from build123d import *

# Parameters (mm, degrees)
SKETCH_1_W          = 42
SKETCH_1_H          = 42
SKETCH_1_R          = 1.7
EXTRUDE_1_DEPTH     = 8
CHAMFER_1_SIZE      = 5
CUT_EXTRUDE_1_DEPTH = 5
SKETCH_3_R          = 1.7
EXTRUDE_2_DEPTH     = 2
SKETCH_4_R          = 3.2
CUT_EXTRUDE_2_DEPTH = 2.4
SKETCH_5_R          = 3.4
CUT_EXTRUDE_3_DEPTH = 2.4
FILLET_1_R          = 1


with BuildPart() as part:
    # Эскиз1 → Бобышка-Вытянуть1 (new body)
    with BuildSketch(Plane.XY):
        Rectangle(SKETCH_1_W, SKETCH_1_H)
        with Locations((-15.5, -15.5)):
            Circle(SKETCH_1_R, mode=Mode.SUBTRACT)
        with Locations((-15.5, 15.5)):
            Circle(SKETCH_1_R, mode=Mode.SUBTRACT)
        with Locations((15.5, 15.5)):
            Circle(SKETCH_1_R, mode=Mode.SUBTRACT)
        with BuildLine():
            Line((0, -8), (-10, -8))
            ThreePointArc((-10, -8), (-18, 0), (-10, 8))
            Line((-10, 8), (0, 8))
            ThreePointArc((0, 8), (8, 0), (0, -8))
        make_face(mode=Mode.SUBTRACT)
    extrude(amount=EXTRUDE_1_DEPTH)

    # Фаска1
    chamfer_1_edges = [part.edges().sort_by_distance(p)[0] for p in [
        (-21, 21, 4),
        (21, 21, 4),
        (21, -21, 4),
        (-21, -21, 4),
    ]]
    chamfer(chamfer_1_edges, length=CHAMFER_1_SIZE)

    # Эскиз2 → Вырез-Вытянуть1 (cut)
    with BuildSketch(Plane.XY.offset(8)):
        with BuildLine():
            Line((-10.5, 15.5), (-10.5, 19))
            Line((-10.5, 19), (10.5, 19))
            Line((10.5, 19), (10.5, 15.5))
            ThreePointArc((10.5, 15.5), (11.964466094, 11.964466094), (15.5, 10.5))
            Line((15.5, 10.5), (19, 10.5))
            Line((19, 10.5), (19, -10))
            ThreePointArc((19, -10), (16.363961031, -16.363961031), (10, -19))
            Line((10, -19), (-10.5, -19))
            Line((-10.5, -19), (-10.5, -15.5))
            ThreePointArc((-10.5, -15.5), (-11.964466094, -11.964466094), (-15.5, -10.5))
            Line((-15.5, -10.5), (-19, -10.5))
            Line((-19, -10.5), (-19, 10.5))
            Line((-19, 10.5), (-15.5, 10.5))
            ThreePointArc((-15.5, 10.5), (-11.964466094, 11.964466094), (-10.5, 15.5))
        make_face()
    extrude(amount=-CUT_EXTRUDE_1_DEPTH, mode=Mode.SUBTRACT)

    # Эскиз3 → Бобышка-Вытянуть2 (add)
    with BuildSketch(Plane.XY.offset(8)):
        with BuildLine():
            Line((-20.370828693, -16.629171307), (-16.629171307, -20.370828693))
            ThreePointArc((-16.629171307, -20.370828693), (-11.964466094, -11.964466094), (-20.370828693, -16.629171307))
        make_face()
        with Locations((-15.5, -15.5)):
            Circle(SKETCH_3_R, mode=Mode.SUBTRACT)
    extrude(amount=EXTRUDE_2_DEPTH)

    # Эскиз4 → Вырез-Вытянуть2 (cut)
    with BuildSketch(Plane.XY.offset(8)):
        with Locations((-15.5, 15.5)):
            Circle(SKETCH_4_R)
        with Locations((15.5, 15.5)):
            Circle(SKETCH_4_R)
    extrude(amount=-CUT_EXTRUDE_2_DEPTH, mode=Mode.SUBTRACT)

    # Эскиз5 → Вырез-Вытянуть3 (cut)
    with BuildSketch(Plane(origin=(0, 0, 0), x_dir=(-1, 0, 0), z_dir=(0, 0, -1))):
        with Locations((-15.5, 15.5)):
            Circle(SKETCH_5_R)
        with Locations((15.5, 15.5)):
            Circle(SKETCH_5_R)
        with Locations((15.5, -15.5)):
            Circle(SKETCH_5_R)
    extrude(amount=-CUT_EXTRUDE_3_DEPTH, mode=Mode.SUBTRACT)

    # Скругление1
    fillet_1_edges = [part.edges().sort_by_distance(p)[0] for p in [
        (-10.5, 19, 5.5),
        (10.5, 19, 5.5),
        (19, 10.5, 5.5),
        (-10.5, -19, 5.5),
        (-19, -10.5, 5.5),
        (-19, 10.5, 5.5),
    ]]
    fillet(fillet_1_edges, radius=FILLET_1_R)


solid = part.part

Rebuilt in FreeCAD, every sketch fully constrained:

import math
import FreeCAD as App
import Part
import Sketcher

V = App.Vector
Q = App.Units.Quantity


def edges_at(feature, points):
    """Names of the edges that pass closest to the given points."""
    edges = feature.Shape.Edges
    near = lambda p: min(range(len(edges)), key=lambda i: edges[i].distToShape(Part.Vertex(*p))[0])
    return sorted({f"Edge{near(p) + 1}" for p in points})

doc = App.newDocument("Part")
params = doc.addObject("Spreadsheet::Sheet", "Params")
for row, (alias, value) in enumerate([
    ("sketch1_radius", "8 mm"),
    ("sketch1_diameter", "3.4 mm"),
    ("sketch1_width", "42 mm"),
    ("sketch1_width2", "10 mm"),
    ("pad1_length", "8 mm"),
    ("chamfer_size", "5 mm"),
    ("sketch2_radius", "5 mm"),
    ("sketch2_radius2", "9 mm"),
    ("sketch2_width", "21 mm"),
    ("sketch2_width2", "3.5 mm"),
    ("pocket1_length", "5 mm"),
    ("sketch3_radius", "5 mm"),
    ("sketch3_diameter", "3.4 mm"),
    ("pad2_length", "2 mm"),
    ("sketch4_diameter", "6.4 mm"),
    ("pocket2_length", "2.4 mm"),
    ("sketch5_diameter", "6.8 mm"),
    ("pocket3_length", "2.4 mm"),
    ("fillet_radius", "1 mm"),
], start=1):
    params.set(f"A{row}", alias)
    params.set(f"B{row}", "=" + value)
    params.setAlias(f"B{row}", alias)

body = doc.addObject("PartDesign::Body", "Body")

# Sketch on XY plane
sketch1 = body.newObject("Sketcher::SketchObject", "Sketch")
sketch1.AttachmentSupport = (doc.getObject("XY_Plane"), [""])
sketch1.MapMode = "FlatFace"
sketch1.addGeometry(Part.LineSegment(V(-21, 21, 0), V(-21, -21, 0)), False)
sketch1.addGeometry(Part.LineSegment(V(-21, -21, 0), V(21, -21, 0)), False)
sketch1.addGeometry(Part.LineSegment(V(21, -21, 0), V(21, 21, 0)), False)
sketch1.addGeometry(Part.LineSegment(V(21, 21, 0), V(-21, 21, 0)), False)
sketch1.addGeometry(Part.Circle(V(-15.5, -15.5, 0), V(0, 0, 1), 1.7), False)
sketch1.addGeometry(Part.ArcOfCircle(Part.Circle(V(0, 0, 0), V(0, 0, 1), 8), math.radians(-90), math.radians(90)), False)
sketch1.addGeometry(Part.LineSegment(V(0, -8, 0), V(-10, -8, 0)), False)
sketch1.addGeometry(Part.ArcOfCircle(Part.Circle(V(-10, 0, 0), V(0, 0, 1), 8), math.radians(90), math.radians(270)), False)
sketch1.addGeometry(Part.LineSegment(V(-10, 8, 0), V(0, 8, 0)), False)
sketch1.addGeometry(Part.Circle(V(-15.5, 15.5, 0), V(0, 0, 1), 1.7), False)
sketch1.addGeometry(Part.Circle(V(15.5, 15.5, 0), V(0, 0, 1), 1.7), False)
sketch1.addConstraint(Sketcher.Constraint("Coincident", 0, 2, 1, 1))
sketch1.addConstraint(Sketcher.Constraint("Coincident", 1, 2, 2, 1))
sketch1.addConstraint(Sketcher.Constraint("Coincident", 2, 2, 3, 1))
sketch1.addConstraint(Sketcher.Constraint("Coincident", 3, 2, 0, 1))
sketch1.addConstraint(Sketcher.Constraint("Tangent", 5, 1, 6, 1))
sketch1.addConstraint(Sketcher.Constraint("Tangent", 6, 2, 7, 2))
sketch1.addConstraint(Sketcher.Constraint("Tangent", 7, 1, 8, 1))
sketch1.addConstraint(Sketcher.Constraint("Tangent", 8, 2, 5, 2))
sketch1.addConstraint(Sketcher.Constraint("Vertical", 0))
sketch1.addConstraint(Sketcher.Constraint("Horizontal", 1))
sketch1.addConstraint(Sketcher.Constraint("Vertical", 2))
sketch1.addConstraint(Sketcher.Constraint("Horizontal", 3))
sketch1.addConstraint(Sketcher.Constraint("Horizontal", 6))
sketch1.addConstraint(Sketcher.Constraint("Horizontal", 8))
sketch1.addConstraint(Sketcher.Constraint("Coincident", 5, 3, -1, 1))
sketch1.addConstraint(Sketcher.Constraint("Equal", 4, 9))
sketch1.addConstraint(Sketcher.Constraint("Equal", 9, 10))
sketch1.addConstraint(Sketcher.Constraint("Symmetric", 4, 3, 10, 3, -1, 1))
sketch1.addConstraint(Sketcher.Constraint("Symmetric", 0, 2, 2, 2, -1, 1))
sketch1.addConstraint(Sketcher.Constraint("Symmetric", 9, 3, 10, 3, -2))
sketch1.addConstraint(Sketcher.Constraint("Equal", 3, 0))
sketch1.addConstraint(Sketcher.Constraint("Radius", 5, 8.0))
sketch1.addConstraint(Sketcher.Constraint("Diameter", 4, 3.4))
sketch1.addConstraint(Sketcher.Constraint("DistanceX", 1, 1, 1, 2, 42.0))
sketch1.addConstraint(Sketcher.Constraint("DistanceX", 6, 2, 6, 1, 10.0))
sketch1.addConstraint(Sketcher.Constraint("DistanceY", 4, 3, 9, 3, 31.0))
sketch1.addConstraint(Sketcher.Constraint("DistanceX", 9, 3, 10, 3, 31.0))
sketch1.setExpression("Constraints[21]", "Params.sketch1_radius")
sketch1.setExpression("Constraints[22]", "Params.sketch1_diameter")
sketch1.setExpression("Constraints[23]", "Params.sketch1_width")
sketch1.setExpression("Constraints[24]", "Params.sketch1_width2")
pad1 = body.newObject("PartDesign::Pad", "Pad")
pad1.Profile = sketch1
pad1.setExpression("Length", "Params.pad1_length")
doc.recompute()

chamfer = body.newObject("PartDesign::Chamfer", "Chamfer")
chamfer.Base = (pad1, edges_at(pad1, [
    (-21, 21, 4),
    (21, 21, 4),
    (21, -21, 4),
    (-21, -21, 4),
]))
chamfer.setExpression("Size", "Params.chamfer_size")

# Sketch on XY plane
sketch2 = body.newObject("Sketcher::SketchObject", "Sketch001")
sketch2.AttachmentSupport = (doc.getObject("XY_Plane"), [""])
sketch2.MapMode = "FlatFace"
sketch2.AttachmentOffset = App.Placement(V(0, 0, 8), App.Rotation())
sketch2.addGeometry(Part.LineSegment(V(-10.5, 19, 0), V(-10.5, 15.5, 0)), False)
sketch2.addGeometry(Part.ArcOfCircle(Part.Circle(V(-15.5, 15.5, 0), V(0, 0, 1), 5), math.radians(-90), math.radians(0)), False)
sketch2.addGeometry(Part.LineSegment(V(-15.5, 10.5, 0), V(-19, 10.5, 0)), False)
sketch2.addGeometry(Part.LineSegment(V(-19, 10.5, 0), V(-19, -10.5, 0)), False)
sketch2.addGeometry(Part.LineSegment(V(-19, -10.5, 0), V(-15.5, -10.5, 0)), False)
sketch2.addGeometry(Part.ArcOfCircle(Part.Circle(V(-15.5, -15.5, 0), V(0, 0, 1), 5), math.radians(0), math.radians(90)), False)
sketch2.addGeometry(Part.LineSegment(V(-10.5, -15.5, 0), V(-10.5, -19, 0)), False)
sketch2.addGeometry(Part.LineSegment(V(-10.5, -19, 0), V(10, -19, 0)), False)
sketch2.addGeometry(Part.ArcOfCircle(Part.Circle(V(10, -10, 0), V(0, 0, 1), 9), math.radians(-90), math.radians(0)), False)
sketch2.addGeometry(Part.LineSegment(V(19, -10, 0), V(19, 10.5, 0)), False)
sketch2.addGeometry(Part.LineSegment(V(19, 10.5, 0), V(15.5, 10.5, 0)), False)
sketch2.addGeometry(Part.ArcOfCircle(Part.Circle(V(15.5, 15.5, 0), V(0, 0, 1), 5), math.radians(180), math.radians(270)), False)
sketch2.addGeometry(Part.LineSegment(V(10.5, 15.5, 0), V(10.5, 19, 0)), False)
sketch2.addGeometry(Part.LineSegment(V(10.5, 19, 0), V(-10.5, 19, 0)), False)
sketch2.addConstraint(Sketcher.Constraint("Tangent", 0, 2, 1, 2))
sketch2.addConstraint(Sketcher.Constraint("Tangent", 1, 1, 2, 1))
sketch2.addConstraint(Sketcher.Constraint("Coincident", 2, 2, 3, 1))
sketch2.addConstraint(Sketcher.Constraint("Coincident", 3, 2, 4, 1))
sketch2.addConstraint(Sketcher.Constraint("Tangent", 4, 2, 5, 2))
sketch2.addConstraint(Sketcher.Constraint("Tangent", 5, 1, 6, 1))
sketch2.addConstraint(Sketcher.Constraint("Coincident", 6, 2, 7, 1))
sketch2.addConstraint(Sketcher.Constraint("Tangent", 7, 2, 8, 1))
sketch2.addConstraint(Sketcher.Constraint("Tangent", 8, 2, 9, 1))
sketch2.addConstraint(Sketcher.Constraint("Coincident", 9, 2, 10, 1))
sketch2.addConstraint(Sketcher.Constraint("Tangent", 10, 2, 11, 2))
sketch2.addConstraint(Sketcher.Constraint("Tangent", 11, 1, 12, 1))
sketch2.addConstraint(Sketcher.Constraint("Coincident", 12, 2, 13, 1))
sketch2.addConstraint(Sketcher.Constraint("Coincident", 13, 2, 0, 1))
sketch2.addConstraint(Sketcher.Constraint("Vertical", 0))
sketch2.addConstraint(Sketcher.Constraint("Horizontal", 2))
sketch2.addConstraint(Sketcher.Constraint("Vertical", 3))
sketch2.addConstraint(Sketcher.Constraint("Horizontal", 4))
sketch2.addConstraint(Sketcher.Constraint("Vertical", 6))
sketch2.addConstraint(Sketcher.Constraint("Horizontal", 7))
sketch2.addConstraint(Sketcher.Constraint("Vertical", 9))
sketch2.addConstraint(Sketcher.Constraint("Horizontal", 10))
sketch2.addConstraint(Sketcher.Constraint("Vertical", 12))
sketch2.addConstraint(Sketcher.Constraint("Horizontal", 13))
sketch2.addConstraint(Sketcher.Constraint("Equal", 1, 5))
sketch2.addConstraint(Sketcher.Constraint("Equal", 5, 11))
sketch2.addConstraint(Sketcher.Constraint("Symmetric", 5, 3, 11, 3, -1, 1))
sketch2.addConstraint(Sketcher.Constraint("Symmetric", 1, 3, 11, 3, -2))
sketch2.addConstraint(Sketcher.Constraint("Equal", 4, 10))
sketch2.addConstraint(Sketcher.Constraint("Equal", 10, 0))
sketch2.addConstraint(Sketcher.Constraint("Equal", 13, 3))
sketch2.addConstraint(Sketcher.Constraint("Equal", 0, 6))
sketch2.addConstraint(Sketcher.Constraint("Radius", 1, 5.0))
sketch2.addConstraint(Sketcher.Constraint("Radius", 8, 9.0))
sketch2.addConstraint(Sketcher.Constraint("DistanceX", 13, 2, 13, 1, 21.0))
sketch2.addConstraint(Sketcher.Constraint("DistanceX", 2, 2, 2, 1, 3.5))
sketch2.setExpression("Constraints[32]", "Params.sketch2_radius")
sketch2.setExpression("Constraints[33]", "Params.sketch2_radius2")
sketch2.setExpression("Constraints[34]", "Params.sketch2_width")
sketch2.setExpression("Constraints[35]", "Params.sketch2_width2")
pocket1 = body.newObject("PartDesign::Pocket", "Pocket")
pocket1.Profile = sketch2
pocket1.setExpression("Length", "Params.pocket1_length")

# Sketch on XY plane
sketch3 = body.newObject("Sketcher::SketchObject", "Sketch002")
sketch3.AttachmentSupport = (doc.getObject("XY_Plane"), [""])
sketch3.MapMode = "FlatFace"
sketch3.AttachmentOffset = App.Placement(V(0, 0, 8), App.Rotation())
sketch3.addGeometry(Part.LineSegment(V(-20.4, -16.6, 0), V(-16.6, -20.4, 0)), False)
sketch3.addGeometry(Part.ArcOfCircle(Part.Circle(V(-15.5, -15.5, 0), V(0, 0, 1), 5), math.radians(-103), math.radians(193)), False)
sketch3.addGeometry(Part.Circle(V(-15.5, -15.5, 0), V(0, 0, 1), 1.7), False)
sketch3.addConstraint(Sketcher.Constraint("Coincident", 0, 1, 1, 2))
sketch3.addConstraint(Sketcher.Constraint("Coincident", 1, 1, 0, 2))
sketch3.addConstraint(Sketcher.Constraint("Coincident", 2, 3, 1, 3))
sketch3.addConstraint(Sketcher.Constraint("Radius", 1, 5.0))
sketch3.addConstraint(Sketcher.Constraint("Diameter", 2, 3.4))
sketch3.addConstraint(Sketcher.Constraint("Angle", 0, Q("-45 deg")))
sketch3.addConstraint(Sketcher.Constraint("DistanceX", 1, 3, -1, 1, 15.5))
sketch3.addConstraint(Sketcher.Constraint("DistanceY", 1, 3, -1, 1, 15.5))
sketch3.addConstraint(Sketcher.Constraint("DistanceX", 0, 1, -1, 1, 20.370829))
sketch3.setExpression("Constraints[3]", "Params.sketch3_radius")
sketch3.setExpression("Constraints[4]", "Params.sketch3_diameter")
pad2 = body.newObject("PartDesign::Pad", "Pad001")
pad2.Profile = sketch3
pad2.setExpression("Length", "Params.pad2_length")

# Sketch on XY plane
sketch4 = body.newObject("Sketcher::SketchObject", "Sketch003")
sketch4.AttachmentSupport = (doc.getObject("XY_Plane"), [""])
sketch4.MapMode = "FlatFace"
sketch4.AttachmentOffset = App.Placement(V(0, 0, 8), App.Rotation())
sketch4.addGeometry(Part.Circle(V(-15.5, 15.5, 0), V(0, 0, 1), 3.2), False)
sketch4.addGeometry(Part.Circle(V(15.5, 15.5, 0), V(0, 0, 1), 3.2), False)
sketch4.addConstraint(Sketcher.Constraint("Equal", 0, 1))
sketch4.addConstraint(Sketcher.Constraint("Symmetric", 0, 3, 1, 3, -2))
sketch4.addConstraint(Sketcher.Constraint("Diameter", 0, 6.4))
sketch4.addConstraint(Sketcher.Constraint("DistanceX", 0, 3, 1, 3, 31.0))
sketch4.addConstraint(Sketcher.Constraint("DistanceY", -1, 1, 0, 3, 15.5))
sketch4.setExpression("Constraints[2]", "Params.sketch4_diameter")
pocket2 = body.newObject("PartDesign::Pocket", "Pocket001")
pocket2.Profile = sketch4
pocket2.setExpression("Length", "Params.pocket2_length")

# Sketch on XY plane
sketch5 = body.newObject("Sketcher::SketchObject", "Sketch004")
sketch5.AttachmentSupport = (doc.getObject("XY_Plane"), [""])
sketch5.MapMode = "FlatFace"
sketch5.addGeometry(Part.Circle(V(15.5, 15.5, 0), V(0, 0, 1), 3.4), False)
sketch5.addGeometry(Part.Circle(V(-15.5, 15.5, 0), V(0, 0, 1), 3.4), False)
sketch5.addGeometry(Part.Circle(V(-15.5, -15.5, 0), V(0, 0, 1), 3.4), False)
sketch5.addConstraint(Sketcher.Constraint("Equal", 0, 1))
sketch5.addConstraint(Sketcher.Constraint("Equal", 1, 2))
sketch5.addConstraint(Sketcher.Constraint("Symmetric", 0, 3, 2, 3, -1, 1))
sketch5.addConstraint(Sketcher.Constraint("Symmetric", 0, 3, 1, 3, -2))
sketch5.addConstraint(Sketcher.Constraint("Diameter", 0, 6.8))
sketch5.addConstraint(Sketcher.Constraint("DistanceX", 1, 3, 0, 3, 31.0))
sketch5.addConstraint(Sketcher.Constraint("DistanceY", 2, 3, 1, 3, 31.0))
sketch5.setExpression("Constraints[4]", "Params.sketch5_diameter")
pocket3 = body.newObject("PartDesign::Pocket", "Pocket002")
pocket3.Profile = sketch5
pocket3.setExpression("Length", "Params.pocket3_length")
pocket3.Reversed = True
doc.recompute()

fillet = body.newObject("PartDesign::Fillet", "Fillet")
fillet.Base = (pocket3, edges_at(pocket3, [
    (-10.5, 19, 5.5),
    (10.5, 19, 5.5),
    (19, 10.5, 5.5),
    (-10.5, -19, 5.5),
    (-19, -10.5, 5.5),
    (-19, 10.5, 5.5),
]))
fillet.setExpression("Radius", "Params.fillet_radius")

doc.recompute()
